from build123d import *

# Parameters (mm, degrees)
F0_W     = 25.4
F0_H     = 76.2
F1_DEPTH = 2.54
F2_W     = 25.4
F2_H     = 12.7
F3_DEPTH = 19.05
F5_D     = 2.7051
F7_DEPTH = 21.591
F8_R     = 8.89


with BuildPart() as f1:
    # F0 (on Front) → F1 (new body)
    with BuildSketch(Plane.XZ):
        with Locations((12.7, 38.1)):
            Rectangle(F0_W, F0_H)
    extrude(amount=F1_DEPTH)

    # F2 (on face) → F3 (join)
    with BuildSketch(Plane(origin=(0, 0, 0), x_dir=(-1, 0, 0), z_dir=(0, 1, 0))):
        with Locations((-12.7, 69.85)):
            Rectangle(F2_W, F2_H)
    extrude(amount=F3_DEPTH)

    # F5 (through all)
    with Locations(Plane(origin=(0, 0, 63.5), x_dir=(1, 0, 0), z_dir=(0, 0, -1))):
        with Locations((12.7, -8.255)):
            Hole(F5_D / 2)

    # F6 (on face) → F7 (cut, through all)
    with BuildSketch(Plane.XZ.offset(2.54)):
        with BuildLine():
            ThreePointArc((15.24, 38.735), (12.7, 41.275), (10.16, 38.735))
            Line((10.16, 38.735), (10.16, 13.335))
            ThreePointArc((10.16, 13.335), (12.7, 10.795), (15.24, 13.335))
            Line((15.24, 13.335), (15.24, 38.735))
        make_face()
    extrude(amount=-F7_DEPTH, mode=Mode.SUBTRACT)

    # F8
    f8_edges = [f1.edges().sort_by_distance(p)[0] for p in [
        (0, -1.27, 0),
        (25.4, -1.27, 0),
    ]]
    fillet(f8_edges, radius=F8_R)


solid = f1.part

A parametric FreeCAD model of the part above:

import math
import FreeCAD as App
import Part
import Sketcher
Q = App.Units.Quantity


def edges_at(feature, points):
    """Names of the edges that pass closest to the given points."""
    edges = feature.Shape.Edges
    near = lambda p: min(range(len(edges)), key=lambda i: edges[i].distToShape(Part.Vertex(*p))[0])
    return sorted({f"Edge{near(p) + 1}" for p in points})

doc = App.newDocument("Part")
params = doc.addObject("Spreadsheet::Sheet", "Params")
for row, (alias, value) in enumerate([
    ("sketch1_width", "1 in"),
    ("sketch1_height", "3 in"),
    ("pad1_length", "0.1 in"),
    ("sketch2_width", "1 in"),
    ("sketch2_height", "0.5 in"),
    ("pad2_length", "0.75 in"),
    ("hole_diameter", "0.1065 in"),
    ("sketch4_radius", "0.1 in"),
    ("sketch4_height", "1 in"),
    ("fillet_radius", "0.35 in"),
], start=1):
    params.set(f"A{row}", alias)
    params.set(f"B{row}", "=" + value)
    params.setAlias(f"B{row}", alias)

body = doc.addObject("PartDesign::Body", "Body")

# Sketch on XZ plane
sketch1 = doc.addObject("Sketcher::SketchObject", "Sketch")
body.addObject(sketch1)
sketch1.AttachmentSupport = (doc.XZ_Plane, [""])
sketch1.MapMode = "FlatFace"
sketch1.addGeometry([
    Part.LineSegment(App.Vector(0, 76, 0), App.Vector(0, 0, 0)),
    Part.LineSegment(App.Vector(0, 0, 0), App.Vector(25, 0, 0)),
    Part.LineSegment(App.Vector(25, 0, 0), App.Vector(25, 76, 0)),
    Part.LineSegment(App.Vector(25, 76, 0), App.Vector(0, 76, 0)),
], False)
sketch1.addConstraint([
    Sketcher.Constraint("Coincident", 0, 2, 1, 1),
    Sketcher.Constraint("Coincident", 1, 2, 2, 1),
    Sketcher.Constraint("Coincident", 2, 2, 3, 1),
    Sketcher.Constraint("Coincident", 3, 2, 0, 1),
    Sketcher.Constraint("Vertical", 0),
    Sketcher.Constraint("Horizontal", 1),
    Sketcher.Constraint("Vertical", 2),
    Sketcher.Constraint("Horizontal", 3),
    Sketcher.Constraint("Coincident", 0, 2, -1, 1),
    Sketcher.Constraint("DistanceX", 1, 1, 1, 2, Q("1 in")),
    Sketcher.Constraint("DistanceY", 0, 2, 0, 1, Q("3 in")),
])
sketch1.setExpression("Constraints[9]", "Params.sketch1_width")
sketch1.setExpression("Constraints[10]", "Params.sketch1_height")
pad1 = doc.addObject("PartDesign::Pad", "Pad")
body.addObject(pad1)
pad1.Profile = sketch1
pad1.setExpression("Length", "Params.pad1_length")

# Sketch on XZ plane
sketch2 = doc.addObject("Sketcher::SketchObject", "Sketch001")
body.addObject(sketch2)
sketch2.AttachmentSupport = (doc.XZ_Plane, [""])
sketch2.MapMode = "FlatFace"
sketch2.addGeometry([
    Part.LineSegment(App.Vector(25, 76, 0), App.Vector(25, 64, 0)),
    Part.LineSegment(App.Vector(25, 64, 0), App.Vector(0, 64, 0)),
    Part.LineSegment(App.Vector(0, 64, 0), App.Vector(0, 76, 0)),
    Part.LineSegment(App.Vector(0, 76, 0), App.Vector(25, 76, 0)),
], False)
sketch2.addConstraint([
    Sketcher.Constraint("Coincident", 0, 2, 1, 1),
    Sketcher.Constraint("Coincident", 1, 2, 2, 1),
    Sketcher.Constraint("Coincident", 2, 2, 3, 1),
    Sketcher.Constraint("Coincident", 3, 2, 0, 1),
    Sketcher.Constraint("Vertical", 0),
    Sketcher.Constraint("Horizontal", 1),
    Sketcher.Constraint("Vertical", 2),
    Sketcher.Constraint("Horizontal", 3),
    Sketcher.Constraint("PointOnObject", 1, 2, -2),
    Sketcher.Constraint("DistanceX", 1, 2, 1, 1, Q("1 in")),
    Sketcher.Constraint("DistanceY", 0, 2, 0, 1, Q("0.5 in")),
    Sketcher.Constraint("DistanceY", -1, 1, 2, 2, Q("3 in")),
])
sketch2.setExpression("Constraints[9]", "Params.sketch2_width")
sketch2.setExpression("Constraints[10]", "Params.sketch2_height")
pad2 = doc.addObject("PartDesign::Pad", "Pad001")
body.addObject(pad2)
pad2.Profile = sketch2
pad2.setExpression("Length", "Params.pad2_length")
pad2.Reversed = True

# Sketch on XY plane
sketch3 = doc.addObject("Sketcher::SketchObject", "Sketch002")
body.addObject(sketch3)
sketch3.AttachmentSupport = (doc.XY_Plane, [""])
sketch3.MapMode = "FlatFace"
sketch3.AttachmentOffset = App.Placement(App.Vector(0, 0, 2.5 * 25.4), App.Rotation())
sketch3.addGeometry(Part.Circle(App.Vector(12.7, 8.3, 0), App.Vector(0, 0, 1), 1.4), False)
sketch3.addConstraint([
    Sketcher.Constraint("Diameter", 0, Q("0.1065 in")),
    Sketcher.Constraint("DistanceX", -1, 1, 0, 3, Q("0.5 in")),
    Sketcher.Constraint("DistanceY", -1, 1, 0, 3, Q("0.325 in")),
])
doc.recompute()
hole = doc.addObject("PartDesign::Hole", "Hole")
body.addObject(hole)
hole.Profile = sketch3
hole.ThreadType = "None"
hole.setExpression("Diameter", "Params.hole_diameter")
hole.DepthType = "ThroughAll"
hole.Reversed = True

# Sketch on XZ plane
sketch4 = doc.addObject("Sketcher::SketchObject", "Sketch003")
body.addObject(sketch4)
sketch4.AttachmentSupport = (doc.XZ_Plane, [""])
sketch4.MapMode = "FlatFace"
sketch4.AttachmentOffset = App.Placement(App.Vector(0, 0, 0.1 * 25.4), App.Rotation())
sketch4.addGeometry([
    Part.ArcOfCircle(Part.Circle(App.Vector(12.7, 38.7, 0), App.Vector(0, 0, 1), 2.5), math.radians(0), math.radians(180)),
    Part.LineSegment(App.Vector(10.2, 38.7, 0), App.Vector(10.2, 13.3, 0)),
    Part.ArcOfCircle(Part.Circle(App.Vector(12.7, 13.3, 0), App.Vector(0, 0, 1), 2.5), math.radians(180), math.radians(360)),
    Part.LineSegment(App.Vector(15.2, 13.3, 0), App.Vector(15.2, 38.7, 0)),
], False)
sketch4.addConstraint([
    Sketcher.Constraint("Tangent", 0, 2, 1, 1),
    Sketcher.Constraint("Tangent", 1, 2, 2, 1),
    Sketcher.Constraint("Tangent", 2, 2, 3, 1),
    Sketcher.Constraint("Tangent", 3, 2, 0, 1),
    Sketcher.Constraint("Vertical", 1),
    Sketcher.Constraint("Vertical", 3),
    Sketcher.Constraint("Radius", 0, Q("0.1 in")),
    Sketcher.Constraint("DistanceY", 1, 2, 1, 1, Q("1 in")),
    Sketcher.Constraint("DistanceX", -1, 1, 0, 3, Q("0.5 in")),
    Sketcher.Constraint("DistanceY", -1, 1, 0, 3, Q("1.525 in")),
])
sketch4.setExpression("Constraints[6]", "Params.sketch4_radius")
sketch4.setExpression("Constraints[7]", "Params.sketch4_height")
pocket1 = doc.addObject("PartDesign::Pocket", "Pocket")
body.addObject(pocket1)
pocket1.Profile = sketch4
pocket1.Type = "ThroughAll"
doc.recompute()

fillet = doc.addObject("PartDesign::Fillet", "Fillet")
body.addObject(fillet)
fillet.Base = (pocket1, edges_at(pocket1, [(0, -1.27, 0), (25.4, -1.27, 0)]))
fillet.setExpression("Radius", "Params.fillet_radius")

doc.recompute()
